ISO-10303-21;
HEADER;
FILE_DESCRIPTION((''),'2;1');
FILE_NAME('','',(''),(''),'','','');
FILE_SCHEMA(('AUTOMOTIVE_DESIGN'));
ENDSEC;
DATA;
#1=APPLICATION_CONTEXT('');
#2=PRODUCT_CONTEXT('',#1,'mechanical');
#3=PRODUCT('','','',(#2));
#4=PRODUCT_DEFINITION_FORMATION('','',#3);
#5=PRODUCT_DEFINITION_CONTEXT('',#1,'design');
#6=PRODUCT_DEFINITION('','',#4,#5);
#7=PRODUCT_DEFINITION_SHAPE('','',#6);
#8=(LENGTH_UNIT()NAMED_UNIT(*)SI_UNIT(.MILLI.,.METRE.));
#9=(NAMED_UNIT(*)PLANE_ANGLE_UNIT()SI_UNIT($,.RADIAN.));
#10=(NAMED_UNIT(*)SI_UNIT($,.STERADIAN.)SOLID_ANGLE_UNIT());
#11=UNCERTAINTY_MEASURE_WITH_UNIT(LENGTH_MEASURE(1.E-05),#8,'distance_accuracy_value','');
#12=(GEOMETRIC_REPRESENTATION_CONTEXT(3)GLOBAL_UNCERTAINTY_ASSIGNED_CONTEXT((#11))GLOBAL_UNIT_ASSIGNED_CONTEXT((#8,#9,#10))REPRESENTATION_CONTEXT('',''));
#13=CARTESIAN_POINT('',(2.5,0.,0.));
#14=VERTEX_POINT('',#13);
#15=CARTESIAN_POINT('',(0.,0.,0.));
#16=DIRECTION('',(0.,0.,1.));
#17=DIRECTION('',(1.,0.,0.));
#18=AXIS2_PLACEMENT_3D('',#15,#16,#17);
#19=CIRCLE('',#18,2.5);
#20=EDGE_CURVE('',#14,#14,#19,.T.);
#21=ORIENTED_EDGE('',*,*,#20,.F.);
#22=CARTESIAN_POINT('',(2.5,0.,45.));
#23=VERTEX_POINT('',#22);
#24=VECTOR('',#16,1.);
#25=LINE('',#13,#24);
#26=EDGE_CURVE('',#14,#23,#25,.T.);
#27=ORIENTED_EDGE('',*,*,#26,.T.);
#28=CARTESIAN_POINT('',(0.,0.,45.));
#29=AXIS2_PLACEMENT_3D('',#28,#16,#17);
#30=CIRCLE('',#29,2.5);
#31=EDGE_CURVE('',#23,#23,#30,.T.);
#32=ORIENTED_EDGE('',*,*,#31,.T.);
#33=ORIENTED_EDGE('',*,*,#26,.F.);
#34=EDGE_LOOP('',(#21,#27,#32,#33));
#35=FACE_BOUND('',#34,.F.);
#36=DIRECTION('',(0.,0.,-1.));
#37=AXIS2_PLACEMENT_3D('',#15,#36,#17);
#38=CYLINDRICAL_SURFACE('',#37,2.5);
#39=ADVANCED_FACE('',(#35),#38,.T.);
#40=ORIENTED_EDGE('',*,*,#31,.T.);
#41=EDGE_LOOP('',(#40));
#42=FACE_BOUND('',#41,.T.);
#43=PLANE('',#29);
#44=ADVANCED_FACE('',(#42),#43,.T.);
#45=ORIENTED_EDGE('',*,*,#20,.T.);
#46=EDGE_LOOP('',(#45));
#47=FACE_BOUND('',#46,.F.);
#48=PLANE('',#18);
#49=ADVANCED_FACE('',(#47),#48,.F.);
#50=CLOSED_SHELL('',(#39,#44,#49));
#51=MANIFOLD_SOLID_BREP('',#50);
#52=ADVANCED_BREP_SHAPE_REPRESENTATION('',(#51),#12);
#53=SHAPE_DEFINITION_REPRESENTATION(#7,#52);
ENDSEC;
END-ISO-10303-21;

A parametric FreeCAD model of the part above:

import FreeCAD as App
import Part
import Sketcher
from FreeCAD import Vector

doc = App.newDocument("Part")
body = doc.addObject("PartDesign::Body", "Body")

sketch1 = body.newObject("Sketcher::SketchObject", "Sketch")
sketch1.AttachmentSupport = (doc.getObject("XY_Plane"), [""])
sketch1.MapMode = "FlatFace"
sketch1.addGeometry(Part.Circle(Vector(0, 0, 0), Vector(0, 0, 1), 2.5), False)
sketch1.addConstraint([
    Sketcher.Constraint("Coincident", 0, 3, -1, 1),
    Sketcher.Constraint("Diameter", 0, 5.0),
])
pad1 = body.newObject("PartDesign::Pad", "Pad")
pad1.Profile = sketch1
pad1.Length = 45

doc.recompute()
